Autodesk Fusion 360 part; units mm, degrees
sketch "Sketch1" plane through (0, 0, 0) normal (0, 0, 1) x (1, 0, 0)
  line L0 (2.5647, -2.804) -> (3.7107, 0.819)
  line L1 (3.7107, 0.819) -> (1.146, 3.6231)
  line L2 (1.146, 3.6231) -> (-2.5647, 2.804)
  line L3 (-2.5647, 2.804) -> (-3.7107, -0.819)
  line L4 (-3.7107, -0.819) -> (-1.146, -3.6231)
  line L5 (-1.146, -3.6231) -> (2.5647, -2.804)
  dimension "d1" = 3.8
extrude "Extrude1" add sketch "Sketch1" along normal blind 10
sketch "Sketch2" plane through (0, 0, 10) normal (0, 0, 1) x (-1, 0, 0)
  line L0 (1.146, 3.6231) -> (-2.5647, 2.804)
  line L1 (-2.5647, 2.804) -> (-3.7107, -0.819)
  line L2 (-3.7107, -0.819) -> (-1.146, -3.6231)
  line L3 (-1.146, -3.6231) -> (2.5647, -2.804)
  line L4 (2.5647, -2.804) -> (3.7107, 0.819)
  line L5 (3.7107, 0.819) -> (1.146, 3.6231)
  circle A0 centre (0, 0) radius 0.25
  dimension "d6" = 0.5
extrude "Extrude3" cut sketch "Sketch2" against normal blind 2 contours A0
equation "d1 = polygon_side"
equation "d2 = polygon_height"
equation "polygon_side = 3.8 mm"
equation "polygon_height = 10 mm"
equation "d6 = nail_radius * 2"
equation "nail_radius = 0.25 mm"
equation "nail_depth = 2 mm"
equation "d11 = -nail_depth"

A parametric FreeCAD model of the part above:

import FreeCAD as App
import Part
import Sketcher

doc = App.newDocument("Part")
body = doc.addObject("PartDesign::Body", "Body")

sketch1 = body.newObject("Sketcher::SketchObject", "Sketch")
sketch1.AttachmentSupport = (doc.getObject("XY_Plane"), [""])
sketch1.MapMode = "FlatFace"
sketch1.addGeometry(Part.LineSegment(App.Vector(-1.1, -3.6, 0), App.Vector(2.6, -2.8, 0)), False)
sketch1.addGeometry(Part.LineSegment(App.Vector(2.6, -2.8, 0), App.Vector(3.7, 0.8, 0)), False)
sketch1.addGeometry(Part.LineSegment(App.Vector(3.7, 0.8, 0), App.Vector(1.1, 3.6, 0)), False)
sketch1.addGeometry(Part.LineSegment(App.Vector(1.1, 3.6, 0), App.Vector(-2.6, 2.8, 0)), False)
sketch1.addGeometry(Part.LineSegment(App.Vector(-2.6, 2.8, 0), App.Vector(-3.7, -0.8, 0)), False)
sketch1.addGeometry(Part.LineSegment(App.Vector(-3.7, -0.8, 0), App.Vector(-1.1, -3.6, 0)), False)
sketch1.addConstraint(Sketcher.Constraint("Coincident", 0, 2, 1, 1))
sketch1.addConstraint(Sketcher.Constraint("Coincident", 1, 2, 2, 1))
sketch1.addConstraint(Sketcher.Constraint("Coincident", 2, 2, 3, 1))
sketch1.addConstraint(Sketcher.Constraint("Coincident", 3, 2, 4, 1))
sketch1.addConstraint(Sketcher.Constraint("Coincident", 4, 2, 5, 1))
sketch1.addConstraint(Sketcher.Constraint("Coincident", 5, 2, 0, 1))
sketch1.addConstraint(Sketcher.Constraint("Symmetric", 0, 2, 3, 2, -1, 1))
sketch1.addConstraint(Sketcher.Constraint("Symmetric", 1, 2, 4, 2, -1, 1))
sketch1.addConstraint(Sketcher.Constraint("Symmetric", 2, 2, 5, 2, -1, 1))
sketch1.addConstraint(Sketcher.Constraint("Equal", 0, 1))
sketch1.addConstraint(Sketcher.Constraint("Equal", 1, 2))
sketch1.addConstraint(Sketcher.Constraint("Distance", 0, 3.8))
sketch1.addConstraint(Sketcher.Constraint("DistanceY", 0, 2, -1, 1, 2.804))
sketch1.addConstraint(Sketcher.Constraint("DistanceY", -1, 1, 1, 2, 0.819))
sketch1.addConstraint(Sketcher.Constraint("DistanceX", -1, 1, 2, 2, 1.146))
pad1 = body.newObject("PartDesign::Pad", "Pad")
pad1.Profile = sketch1
pad1.Length = 10

sketch2 = body.newObject("Sketcher::SketchObject", "Sketch001")
sketch2.AttachmentSupport = (doc.getObject("XY_Plane"), [""])
sketch2.MapMode = "FlatFace"
sketch2.AttachmentOffset = App.Placement(App.Vector(0, 0, 10), App.Rotation())
sketch2.addGeometry(Part.Circle(App.Vector(0, 0, 0), App.Vector(0, 0, 1), 0.25), False)
sketch2.addConstraint(Sketcher.Constraint("Coincident", 0, 3, -1, 1))
sketch2.addConstraint(Sketcher.Constraint("Diameter", 0, 0.5))
pocket1 = body.newObject("PartDesign::Pocket", "Pocket")
pocket1.Profile = sketch2
pocket1.Length = 2

doc.recompute()
